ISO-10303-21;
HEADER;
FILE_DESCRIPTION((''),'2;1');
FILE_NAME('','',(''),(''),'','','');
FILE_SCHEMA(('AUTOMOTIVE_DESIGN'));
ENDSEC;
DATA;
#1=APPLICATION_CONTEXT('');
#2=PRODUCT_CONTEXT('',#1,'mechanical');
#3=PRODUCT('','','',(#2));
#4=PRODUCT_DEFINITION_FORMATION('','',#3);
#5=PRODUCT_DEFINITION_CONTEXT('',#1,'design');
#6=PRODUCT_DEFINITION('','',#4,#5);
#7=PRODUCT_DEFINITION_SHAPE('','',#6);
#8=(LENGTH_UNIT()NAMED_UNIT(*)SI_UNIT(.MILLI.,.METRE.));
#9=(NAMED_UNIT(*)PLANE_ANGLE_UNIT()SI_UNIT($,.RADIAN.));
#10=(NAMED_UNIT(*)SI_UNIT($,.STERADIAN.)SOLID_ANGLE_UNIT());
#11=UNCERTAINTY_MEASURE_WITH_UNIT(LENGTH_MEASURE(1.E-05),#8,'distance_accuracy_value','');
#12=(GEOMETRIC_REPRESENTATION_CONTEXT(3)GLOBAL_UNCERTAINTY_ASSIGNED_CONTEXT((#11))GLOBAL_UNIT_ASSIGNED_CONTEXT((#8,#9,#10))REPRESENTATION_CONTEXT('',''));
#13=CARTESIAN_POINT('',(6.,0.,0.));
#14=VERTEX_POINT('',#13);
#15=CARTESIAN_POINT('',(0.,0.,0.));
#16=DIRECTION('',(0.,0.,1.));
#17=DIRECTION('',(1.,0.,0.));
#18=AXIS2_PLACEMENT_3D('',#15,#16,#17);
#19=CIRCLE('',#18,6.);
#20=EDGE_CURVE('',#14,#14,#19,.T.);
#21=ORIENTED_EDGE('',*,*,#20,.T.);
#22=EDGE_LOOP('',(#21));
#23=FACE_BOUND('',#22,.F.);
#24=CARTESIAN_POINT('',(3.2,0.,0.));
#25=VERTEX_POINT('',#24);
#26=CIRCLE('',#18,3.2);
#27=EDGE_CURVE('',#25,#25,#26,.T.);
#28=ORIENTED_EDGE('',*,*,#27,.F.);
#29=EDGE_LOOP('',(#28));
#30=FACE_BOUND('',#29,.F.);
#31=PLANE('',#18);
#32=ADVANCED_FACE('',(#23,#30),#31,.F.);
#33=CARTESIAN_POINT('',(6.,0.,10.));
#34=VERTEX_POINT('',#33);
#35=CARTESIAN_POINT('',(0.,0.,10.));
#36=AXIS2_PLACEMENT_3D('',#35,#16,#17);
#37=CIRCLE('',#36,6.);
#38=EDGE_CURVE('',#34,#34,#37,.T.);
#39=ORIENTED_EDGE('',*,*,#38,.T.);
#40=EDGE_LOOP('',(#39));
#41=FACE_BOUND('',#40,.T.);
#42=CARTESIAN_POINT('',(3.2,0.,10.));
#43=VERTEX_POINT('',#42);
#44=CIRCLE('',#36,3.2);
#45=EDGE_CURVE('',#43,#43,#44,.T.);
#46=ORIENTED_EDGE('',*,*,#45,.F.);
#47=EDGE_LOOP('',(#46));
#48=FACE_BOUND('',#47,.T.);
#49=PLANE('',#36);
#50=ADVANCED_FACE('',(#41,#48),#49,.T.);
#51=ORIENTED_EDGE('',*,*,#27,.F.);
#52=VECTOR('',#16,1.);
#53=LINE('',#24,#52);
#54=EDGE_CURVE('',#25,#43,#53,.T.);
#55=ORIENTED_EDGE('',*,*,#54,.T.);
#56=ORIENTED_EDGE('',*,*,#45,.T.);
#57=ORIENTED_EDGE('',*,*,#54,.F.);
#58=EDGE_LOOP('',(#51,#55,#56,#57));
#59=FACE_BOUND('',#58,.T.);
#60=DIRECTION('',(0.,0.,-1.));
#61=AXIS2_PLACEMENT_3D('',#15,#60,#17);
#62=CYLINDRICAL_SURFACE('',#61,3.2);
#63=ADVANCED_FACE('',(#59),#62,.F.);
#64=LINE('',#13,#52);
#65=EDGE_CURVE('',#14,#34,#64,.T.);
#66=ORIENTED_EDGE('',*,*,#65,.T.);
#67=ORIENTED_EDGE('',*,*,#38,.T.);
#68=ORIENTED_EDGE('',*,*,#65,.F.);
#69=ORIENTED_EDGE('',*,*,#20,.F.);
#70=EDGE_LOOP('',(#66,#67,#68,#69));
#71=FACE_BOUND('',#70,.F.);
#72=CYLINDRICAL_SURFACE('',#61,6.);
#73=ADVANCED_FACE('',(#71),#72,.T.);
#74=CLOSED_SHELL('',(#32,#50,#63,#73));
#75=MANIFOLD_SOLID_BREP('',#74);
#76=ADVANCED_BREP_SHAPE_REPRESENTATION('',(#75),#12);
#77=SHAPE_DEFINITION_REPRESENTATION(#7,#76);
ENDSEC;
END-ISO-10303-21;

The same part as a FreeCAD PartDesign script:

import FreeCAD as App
import Part
import Sketcher
from FreeCAD import Vector

doc = App.newDocument("Part")
params = doc.addObject("Spreadsheet::Sheet", "Params")
for row, (alias, value) in enumerate([
    ("sketch1_diameter", "12 mm"),
    ("sketch1_diameter2", "6.4 mm"),
    ("pad1_length", "10 mm"),
], start=1):
    params.set(f"A{row}", alias)
    params.set(f"B{row}", "=" + value)
    params.setAlias(f"B{row}", alias)

body = doc.addObject("PartDesign::Body", "Body")

# Sketch on XY plane
sketch1 = body.newObject("Sketcher::SketchObject", "Sketch")
sketch1.AttachmentSupport = (doc.getObject("XY_Plane"), [""])
sketch1.MapMode = "FlatFace"
sketch1.addGeometry(Part.Circle(Vector(0, 0, 0), Vector(0, 0, 1), 6), False)
sketch1.addGeometry(Part.Circle(Vector(0, 0, 0), Vector(0, 0, 1), 3.2), False)
sketch1.addConstraint(Sketcher.Constraint("Coincident", 0, 3, -1, 1))
sketch1.addConstraint(Sketcher.Constraint("Coincident", 1, 3, -1, 1))
sketch1.addConstraint(Sketcher.Constraint("Diameter", 0, 12.0))
sketch1.addConstraint(Sketcher.Constraint("Diameter", 1, 6.4))
sketch1.setExpression("Constraints[2]", "Params.sketch1_diameter")
sketch1.setExpression("Constraints[3]", "Params.sketch1_diameter2")
pad1 = body.newObject("PartDesign::Pad", "Pad")
pad1.Profile = sketch1
pad1.setExpression("Length", "Params.pad1_length")

doc.recompute()
